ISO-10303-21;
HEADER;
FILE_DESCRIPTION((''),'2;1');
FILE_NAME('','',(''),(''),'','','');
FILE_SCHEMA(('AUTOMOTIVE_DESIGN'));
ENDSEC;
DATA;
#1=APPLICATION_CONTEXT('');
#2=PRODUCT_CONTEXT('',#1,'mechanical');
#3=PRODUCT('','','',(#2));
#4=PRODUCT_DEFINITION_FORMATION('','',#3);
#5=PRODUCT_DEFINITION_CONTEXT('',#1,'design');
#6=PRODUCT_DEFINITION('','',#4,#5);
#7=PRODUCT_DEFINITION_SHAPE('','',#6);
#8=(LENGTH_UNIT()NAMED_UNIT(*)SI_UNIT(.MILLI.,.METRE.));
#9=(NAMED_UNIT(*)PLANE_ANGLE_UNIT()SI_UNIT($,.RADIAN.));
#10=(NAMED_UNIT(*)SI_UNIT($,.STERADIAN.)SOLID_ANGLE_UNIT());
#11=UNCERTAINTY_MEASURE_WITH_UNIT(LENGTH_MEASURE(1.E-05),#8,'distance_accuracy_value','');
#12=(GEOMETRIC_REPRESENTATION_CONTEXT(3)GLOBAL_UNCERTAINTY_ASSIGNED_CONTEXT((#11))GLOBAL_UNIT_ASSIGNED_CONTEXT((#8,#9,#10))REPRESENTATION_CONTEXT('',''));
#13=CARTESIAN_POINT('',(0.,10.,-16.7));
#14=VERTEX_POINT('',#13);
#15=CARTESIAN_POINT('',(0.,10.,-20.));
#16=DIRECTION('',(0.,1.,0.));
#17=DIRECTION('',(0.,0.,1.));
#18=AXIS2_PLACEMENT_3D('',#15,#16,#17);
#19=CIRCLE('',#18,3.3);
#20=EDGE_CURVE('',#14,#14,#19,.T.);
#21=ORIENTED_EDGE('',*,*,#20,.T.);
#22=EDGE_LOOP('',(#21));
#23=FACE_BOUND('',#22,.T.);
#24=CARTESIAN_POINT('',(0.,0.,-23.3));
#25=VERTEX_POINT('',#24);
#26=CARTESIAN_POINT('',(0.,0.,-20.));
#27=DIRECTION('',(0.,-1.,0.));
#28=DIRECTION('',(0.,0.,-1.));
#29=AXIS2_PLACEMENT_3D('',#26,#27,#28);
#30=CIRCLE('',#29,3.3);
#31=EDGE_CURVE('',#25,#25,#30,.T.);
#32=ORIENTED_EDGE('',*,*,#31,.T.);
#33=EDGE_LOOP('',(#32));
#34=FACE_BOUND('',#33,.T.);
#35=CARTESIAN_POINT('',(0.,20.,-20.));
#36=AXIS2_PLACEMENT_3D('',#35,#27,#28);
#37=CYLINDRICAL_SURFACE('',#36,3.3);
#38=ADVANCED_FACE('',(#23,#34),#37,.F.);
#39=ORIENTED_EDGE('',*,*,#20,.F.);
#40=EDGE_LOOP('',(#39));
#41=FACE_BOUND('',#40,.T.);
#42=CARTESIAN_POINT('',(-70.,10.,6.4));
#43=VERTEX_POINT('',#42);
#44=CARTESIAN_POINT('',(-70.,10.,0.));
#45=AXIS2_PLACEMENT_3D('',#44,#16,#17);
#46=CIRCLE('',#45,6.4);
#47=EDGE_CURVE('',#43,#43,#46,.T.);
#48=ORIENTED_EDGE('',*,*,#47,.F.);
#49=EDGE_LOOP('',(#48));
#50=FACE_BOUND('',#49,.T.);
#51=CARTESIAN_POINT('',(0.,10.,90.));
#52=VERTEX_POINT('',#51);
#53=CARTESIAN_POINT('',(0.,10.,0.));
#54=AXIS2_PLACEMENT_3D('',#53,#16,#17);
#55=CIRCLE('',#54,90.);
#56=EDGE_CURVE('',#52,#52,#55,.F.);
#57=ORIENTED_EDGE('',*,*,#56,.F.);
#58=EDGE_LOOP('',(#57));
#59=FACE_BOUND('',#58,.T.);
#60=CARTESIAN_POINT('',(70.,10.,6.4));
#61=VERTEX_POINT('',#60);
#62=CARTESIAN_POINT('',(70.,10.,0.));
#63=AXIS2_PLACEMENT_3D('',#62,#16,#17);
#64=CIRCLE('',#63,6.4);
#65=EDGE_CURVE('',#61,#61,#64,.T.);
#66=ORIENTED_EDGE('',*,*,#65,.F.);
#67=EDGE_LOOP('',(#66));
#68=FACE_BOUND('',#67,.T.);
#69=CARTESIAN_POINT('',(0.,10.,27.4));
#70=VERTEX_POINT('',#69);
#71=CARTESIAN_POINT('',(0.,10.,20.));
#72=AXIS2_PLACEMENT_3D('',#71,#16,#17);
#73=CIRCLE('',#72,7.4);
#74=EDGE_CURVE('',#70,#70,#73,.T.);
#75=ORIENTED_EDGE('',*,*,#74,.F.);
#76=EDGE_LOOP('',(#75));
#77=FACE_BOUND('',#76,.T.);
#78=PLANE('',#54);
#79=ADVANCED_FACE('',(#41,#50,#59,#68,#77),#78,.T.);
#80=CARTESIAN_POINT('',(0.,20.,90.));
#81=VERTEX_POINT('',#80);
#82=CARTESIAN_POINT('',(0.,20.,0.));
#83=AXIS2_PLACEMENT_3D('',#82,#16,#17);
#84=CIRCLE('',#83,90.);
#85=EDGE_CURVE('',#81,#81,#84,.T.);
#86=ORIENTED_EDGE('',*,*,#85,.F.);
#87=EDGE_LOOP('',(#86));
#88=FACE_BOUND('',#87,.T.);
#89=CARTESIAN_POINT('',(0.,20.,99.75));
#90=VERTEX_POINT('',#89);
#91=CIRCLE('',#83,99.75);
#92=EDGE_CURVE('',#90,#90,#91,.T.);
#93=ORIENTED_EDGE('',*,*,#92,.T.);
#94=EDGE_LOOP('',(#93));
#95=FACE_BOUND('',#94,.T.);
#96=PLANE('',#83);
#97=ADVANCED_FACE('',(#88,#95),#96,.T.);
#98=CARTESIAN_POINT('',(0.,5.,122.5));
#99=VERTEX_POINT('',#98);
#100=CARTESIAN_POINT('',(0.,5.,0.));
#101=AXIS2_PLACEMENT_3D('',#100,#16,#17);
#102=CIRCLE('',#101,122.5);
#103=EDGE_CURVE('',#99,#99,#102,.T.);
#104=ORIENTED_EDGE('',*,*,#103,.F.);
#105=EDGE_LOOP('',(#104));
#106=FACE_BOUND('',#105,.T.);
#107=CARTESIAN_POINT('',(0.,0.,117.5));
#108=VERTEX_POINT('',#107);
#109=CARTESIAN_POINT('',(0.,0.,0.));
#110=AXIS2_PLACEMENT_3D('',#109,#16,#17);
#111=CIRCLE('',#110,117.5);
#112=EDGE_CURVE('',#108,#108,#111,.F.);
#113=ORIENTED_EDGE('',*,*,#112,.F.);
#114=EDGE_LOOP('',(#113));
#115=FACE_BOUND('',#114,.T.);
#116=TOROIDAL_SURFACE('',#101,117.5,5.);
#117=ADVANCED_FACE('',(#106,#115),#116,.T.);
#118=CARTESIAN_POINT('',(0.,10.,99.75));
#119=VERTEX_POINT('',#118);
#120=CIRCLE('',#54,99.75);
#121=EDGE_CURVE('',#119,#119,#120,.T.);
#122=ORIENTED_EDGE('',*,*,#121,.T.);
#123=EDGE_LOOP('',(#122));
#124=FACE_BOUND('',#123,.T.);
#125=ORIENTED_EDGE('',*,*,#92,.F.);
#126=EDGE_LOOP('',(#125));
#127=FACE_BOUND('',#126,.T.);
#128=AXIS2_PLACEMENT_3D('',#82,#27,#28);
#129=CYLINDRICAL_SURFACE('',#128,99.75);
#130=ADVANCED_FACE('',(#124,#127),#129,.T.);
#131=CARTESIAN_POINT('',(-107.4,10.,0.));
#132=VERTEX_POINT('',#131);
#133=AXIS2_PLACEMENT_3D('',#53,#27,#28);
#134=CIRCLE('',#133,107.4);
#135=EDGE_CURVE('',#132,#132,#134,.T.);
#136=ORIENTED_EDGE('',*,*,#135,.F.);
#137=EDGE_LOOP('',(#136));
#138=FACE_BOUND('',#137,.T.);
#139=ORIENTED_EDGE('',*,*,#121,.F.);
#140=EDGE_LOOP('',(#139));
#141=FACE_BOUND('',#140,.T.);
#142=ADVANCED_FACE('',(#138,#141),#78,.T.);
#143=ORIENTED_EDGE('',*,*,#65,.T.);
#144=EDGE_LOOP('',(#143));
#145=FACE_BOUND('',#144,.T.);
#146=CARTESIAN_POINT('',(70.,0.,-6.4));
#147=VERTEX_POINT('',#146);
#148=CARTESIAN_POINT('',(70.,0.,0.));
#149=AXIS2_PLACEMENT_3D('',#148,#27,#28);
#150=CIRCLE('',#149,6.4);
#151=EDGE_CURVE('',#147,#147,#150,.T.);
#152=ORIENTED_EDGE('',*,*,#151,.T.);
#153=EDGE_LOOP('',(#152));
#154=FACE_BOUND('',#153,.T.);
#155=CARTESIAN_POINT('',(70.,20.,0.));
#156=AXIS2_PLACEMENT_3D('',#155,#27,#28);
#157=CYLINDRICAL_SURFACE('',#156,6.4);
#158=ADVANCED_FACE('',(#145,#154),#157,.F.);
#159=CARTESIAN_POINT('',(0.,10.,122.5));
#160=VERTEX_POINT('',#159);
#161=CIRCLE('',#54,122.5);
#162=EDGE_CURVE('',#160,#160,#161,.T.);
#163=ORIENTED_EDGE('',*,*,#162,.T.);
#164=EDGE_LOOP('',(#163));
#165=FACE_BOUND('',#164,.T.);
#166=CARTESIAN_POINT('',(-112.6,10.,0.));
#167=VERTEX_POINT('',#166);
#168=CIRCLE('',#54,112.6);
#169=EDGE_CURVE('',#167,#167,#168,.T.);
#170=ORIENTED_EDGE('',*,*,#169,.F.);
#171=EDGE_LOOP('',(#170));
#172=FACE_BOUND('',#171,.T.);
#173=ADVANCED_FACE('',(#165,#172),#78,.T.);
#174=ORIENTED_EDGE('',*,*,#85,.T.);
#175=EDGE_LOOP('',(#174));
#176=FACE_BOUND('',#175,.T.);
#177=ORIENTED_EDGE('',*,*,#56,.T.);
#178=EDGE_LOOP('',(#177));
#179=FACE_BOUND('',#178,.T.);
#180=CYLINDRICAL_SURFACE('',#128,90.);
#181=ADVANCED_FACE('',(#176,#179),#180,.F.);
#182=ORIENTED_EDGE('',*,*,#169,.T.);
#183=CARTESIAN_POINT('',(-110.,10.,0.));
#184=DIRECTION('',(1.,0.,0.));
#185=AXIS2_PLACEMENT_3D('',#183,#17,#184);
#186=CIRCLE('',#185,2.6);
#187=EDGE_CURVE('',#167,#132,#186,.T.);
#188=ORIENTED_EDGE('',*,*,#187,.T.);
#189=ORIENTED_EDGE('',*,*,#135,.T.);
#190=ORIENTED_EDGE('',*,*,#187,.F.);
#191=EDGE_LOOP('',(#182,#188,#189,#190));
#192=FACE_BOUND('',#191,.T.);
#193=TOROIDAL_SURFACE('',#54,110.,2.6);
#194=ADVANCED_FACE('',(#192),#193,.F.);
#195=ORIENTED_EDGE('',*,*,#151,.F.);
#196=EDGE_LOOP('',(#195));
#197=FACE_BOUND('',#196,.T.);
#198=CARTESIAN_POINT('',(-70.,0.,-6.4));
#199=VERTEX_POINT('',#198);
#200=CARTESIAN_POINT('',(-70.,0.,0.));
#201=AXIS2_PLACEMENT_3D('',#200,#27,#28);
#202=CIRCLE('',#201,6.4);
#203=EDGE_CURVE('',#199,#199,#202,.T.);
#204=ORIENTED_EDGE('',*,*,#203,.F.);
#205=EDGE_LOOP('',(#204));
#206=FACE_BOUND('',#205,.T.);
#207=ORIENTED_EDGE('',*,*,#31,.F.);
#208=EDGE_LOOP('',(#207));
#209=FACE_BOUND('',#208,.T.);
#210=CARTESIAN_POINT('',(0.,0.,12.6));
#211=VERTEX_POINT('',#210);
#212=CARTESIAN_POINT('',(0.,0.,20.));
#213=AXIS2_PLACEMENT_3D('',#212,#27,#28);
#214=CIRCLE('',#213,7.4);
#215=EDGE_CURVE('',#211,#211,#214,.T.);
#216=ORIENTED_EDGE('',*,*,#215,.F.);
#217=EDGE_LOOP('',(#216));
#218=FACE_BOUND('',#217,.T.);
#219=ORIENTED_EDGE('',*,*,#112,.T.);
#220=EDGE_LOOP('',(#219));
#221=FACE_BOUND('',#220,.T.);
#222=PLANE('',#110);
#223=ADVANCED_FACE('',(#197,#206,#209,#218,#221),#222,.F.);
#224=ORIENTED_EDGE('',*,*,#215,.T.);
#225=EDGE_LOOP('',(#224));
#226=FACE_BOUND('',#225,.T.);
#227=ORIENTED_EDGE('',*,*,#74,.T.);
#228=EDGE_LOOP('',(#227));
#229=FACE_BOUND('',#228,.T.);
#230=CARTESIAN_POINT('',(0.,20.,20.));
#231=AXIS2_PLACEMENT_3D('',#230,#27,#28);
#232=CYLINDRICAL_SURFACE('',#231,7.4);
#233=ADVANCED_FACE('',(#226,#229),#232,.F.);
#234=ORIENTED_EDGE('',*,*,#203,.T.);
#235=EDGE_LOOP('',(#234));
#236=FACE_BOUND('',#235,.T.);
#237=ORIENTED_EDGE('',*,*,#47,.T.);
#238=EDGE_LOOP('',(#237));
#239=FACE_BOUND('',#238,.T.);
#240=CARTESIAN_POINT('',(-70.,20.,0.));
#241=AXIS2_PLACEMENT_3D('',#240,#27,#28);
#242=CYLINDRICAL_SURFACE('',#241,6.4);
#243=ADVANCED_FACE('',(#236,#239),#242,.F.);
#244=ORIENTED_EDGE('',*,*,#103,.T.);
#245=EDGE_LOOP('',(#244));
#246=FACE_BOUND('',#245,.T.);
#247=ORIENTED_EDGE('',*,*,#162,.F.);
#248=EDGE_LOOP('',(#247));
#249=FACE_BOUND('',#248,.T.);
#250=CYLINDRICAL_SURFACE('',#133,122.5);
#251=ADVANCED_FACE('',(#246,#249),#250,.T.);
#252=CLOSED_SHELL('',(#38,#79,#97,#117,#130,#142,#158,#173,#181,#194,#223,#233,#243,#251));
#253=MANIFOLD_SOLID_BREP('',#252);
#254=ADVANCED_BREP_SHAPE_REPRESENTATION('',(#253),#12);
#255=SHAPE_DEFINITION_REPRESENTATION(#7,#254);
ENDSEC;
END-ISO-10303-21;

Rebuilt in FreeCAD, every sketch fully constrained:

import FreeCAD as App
import Part
import Sketcher

V = App.Vector
Q = App.Units.Quantity


def edges_at(feature, points):
    """Names of the edges that pass closest to the given points."""
    edges = feature.Shape.Edges
    near = lambda p: min(range(len(edges)), key=lambda i: edges[i].distToShape(Part.Vertex(*p))[0])
    return sorted({f"Edge{near(p) + 1}" for p in points})

doc = App.newDocument("Part")
body = doc.addObject("PartDesign::Body", "Body")

# Sketch on XZ plane
sketch1 = body.newObject("Sketcher::SketchObject", "Sketch")
sketch1.AttachmentSupport = (doc.getObject("XZ_Plane"), [""])
sketch1.MapMode = "FlatFace"
sketch1.addGeometry(Part.Circle(V(0, 0, 0), V(0, 0, 1), 122), False)
sketch1.addConstraint([
    Sketcher.Constraint("Coincident", 0, 3, -1, 1),
    Sketcher.Constraint("Diameter", 0, Q("245 mm")),
])
pad1 = body.newObject("PartDesign::Pad", "Pad")
pad1.Profile = sketch1
pad1.Length = 10
pad1.Reversed = True

# Sketch on XY plane
sketch2 = body.newObject("Sketcher::SketchObject", "Sketch001")
sketch2.AttachmentSupport = (doc.getObject("XY_Plane"), [""])
sketch2.MapMode = "FlatFace"
sketch2.addGeometry(Part.Circle(V(-110, 10, 0), V(0, 0, 1), 2.6), False)
sketch2.addConstraint([
    Sketcher.Constraint("Diameter", 0, Q("5.2 mm")),
    Sketcher.Constraint("DistanceX", 0, 3, -1, 1, Q("110 mm")),
    Sketcher.Constraint("DistanceY", -1, 1, 0, 3, Q("10 mm")),
])

# Sketch on XZ plane
sketch3 = body.newObject("Sketcher::SketchObject", "Sketch002")
sketch3.AttachmentSupport = (doc.getObject("XZ_Plane"), [""])
sketch3.MapMode = "FlatFace"
sketch3.AttachmentOffset = App.Placement(V(0, 0, -10), App.Rotation())
sketch3.addGeometry(Part.Circle(V(0, 0, 0), V(0, 0, 1), 110), False)
sketch3.addConstraint([
    Sketcher.Constraint("Coincident", 0, 3, -1, 1),
    Sketcher.Constraint("Diameter", 0, Q("220 mm")),
])
doc.recompute()

subtractivepipe = body.newObject("PartDesign::SubtractivePipe", "SubtractivePipe")
subtractivepipe.Profile = sketch2
subtractivepipe.Spine = (sketch3, ["Edge1"])

# Sketch on XZ plane
sketch4 = body.newObject("Sketcher::SketchObject", "Sketch003")
sketch4.AttachmentSupport = (doc.getObject("XZ_Plane"), [""])
sketch4.MapMode = "FlatFace"
sketch4.AttachmentOffset = App.Placement(V(0, 0, -10), App.Rotation())
sketch4.addGeometry([
    Part.Circle(V(0, 0, 0), V(0, 0, 1), 100),
    Part.Circle(V(0, 0, 0), V(0, 0, 1), 90),
], False)
sketch4.addConstraint([
    Sketcher.Constraint("Coincident", 0, 3, -1, 1),
    Sketcher.Constraint("Coincident", 1, 3, -1, 1),
    Sketcher.Constraint("Diameter", 1, Q("180 mm")),
    Sketcher.Constraint("Diameter", 0, Q("199.5 mm")),
])
pad2 = body.newObject("PartDesign::Pad", "Pad001")
pad2.Profile = sketch4
pad2.Length = 10
pad2.Reversed = True
doc.recompute()

fillet = body.newObject("PartDesign::Fillet", "Fillet")
fillet.Base = (pad2, edges_at(pad2, [(0, 0, -122.5)]))
fillet.Radius = 5

# Sketch on XZ plane
sketch5 = body.newObject("Sketcher::SketchObject", "Sketch004")
sketch5.AttachmentSupport = (doc.getObject("XZ_Plane"), [""])
sketch5.MapMode = "FlatFace"
sketch5.addGeometry([
    Part.Circle(V(0, 20, 0), V(0, 0, 1), 7.4),
    Part.Circle(V(0, -20, 0), V(0, 0, 1), 3.3),
    Part.Circle(V(70, 0, 0), V(0, 0, 1), 6.4),
    Part.Circle(V(-70, 0, 0), V(0, 0, 1), 6.4),
], False)
sketch5.addConstraint([
    Sketcher.Constraint("Equal", 2, 3),
    Sketcher.Constraint("Symmetric", 0, 3, 1, 3, -1, 1),
    Sketcher.Constraint("Symmetric", 2, 3, 3, 3, -1, 1),
    Sketcher.Constraint("PointOnObject", 0, 3, -2),
    Sketcher.Constraint("PointOnObject", 2, 3, -1),
    Sketcher.Constraint("Diameter", 0, Q("14.8 mm")),
    Sketcher.Constraint("Diameter", 1, Q("6.6 mm")),
    Sketcher.Constraint("Diameter", 2, Q("12.8 mm")),
    Sketcher.Constraint("DistanceY", -1, 1, 0, 3, Q("20 mm")),
    Sketcher.Constraint("DistanceX", -1, 1, 2, 3, Q("70 mm")),
])
pocket1 = body.newObject("PartDesign::Pocket", "Pocket")
pocket1.Profile = sketch5
pocket1.Type = "ThroughAll"

doc.recompute()
